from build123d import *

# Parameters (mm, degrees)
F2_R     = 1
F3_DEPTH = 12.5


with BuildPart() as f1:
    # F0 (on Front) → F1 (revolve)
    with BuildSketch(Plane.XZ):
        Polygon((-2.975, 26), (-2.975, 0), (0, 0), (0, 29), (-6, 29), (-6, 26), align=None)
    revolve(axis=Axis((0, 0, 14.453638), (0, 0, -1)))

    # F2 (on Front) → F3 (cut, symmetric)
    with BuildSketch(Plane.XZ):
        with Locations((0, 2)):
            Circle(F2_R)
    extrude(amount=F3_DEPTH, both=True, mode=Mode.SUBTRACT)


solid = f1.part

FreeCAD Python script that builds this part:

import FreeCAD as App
import Part
import Sketcher

V = App.Vector

doc = App.newDocument("Part")
params = doc.addObject("Spreadsheet::Sheet", "Params")
for row, (alias, value) in enumerate([
    ("sketch1_width", "6 mm"),
    ("sketch1_height", "26 mm"),
    ("sketch1_height2", "29 mm"),
    ("revolution_angle", "360 deg"),
    ("sketch2_diameter", "2 mm"),
    ("pocket1_length", "25 mm"),
], start=1):
    params.set(f"A{row}", alias)
    params.set(f"B{row}", "=" + value)
    params.setAlias(f"B{row}", alias)

body = doc.addObject("PartDesign::Body", "Body")

# Sketch on XZ plane
sketch1 = doc.addObject("Sketcher::SketchObject", "Sketch")
body.addObject(sketch1)
sketch1.AttachmentSupport = (doc.XZ_Plane, [""])
sketch1.MapMode = "FlatFace"
sketch1.addGeometry([
    Part.LineSegment(V(-3, 26, 0), V(-3, 0, 0)),  # 0
    Part.LineSegment(V(-3, 0, 0), V(0, 0, 0)),  # 1
    Part.LineSegment(V(0, 0, 0), V(0, 29, 0)),  # 2
    Part.LineSegment(V(0, 29, 0), V(-6, 29, 0)),  # 3
    Part.LineSegment(V(-6, 29, 0), V(-6, 26, 0)),  # 4
    Part.LineSegment(V(-6, 26, 0), V(-3, 26, 0)),  # 5
], False)
sketch1.addConstraint([
    Sketcher.Constraint("Coincident", 0, 2, 1, 1),
    Sketcher.Constraint("Coincident", 1, 2, 2, 1),
    Sketcher.Constraint("Coincident", 2, 2, 3, 1),
    Sketcher.Constraint("Coincident", 3, 2, 4, 1),
    Sketcher.Constraint("Coincident", 4, 2, 5, 1),
    Sketcher.Constraint("Coincident", 5, 2, 0, 1),
    Sketcher.Constraint("Vertical", 0),
    Sketcher.Constraint("Horizontal", 1),
    Sketcher.Constraint("Vertical", 2),
    Sketcher.Constraint("Horizontal", 3),
    Sketcher.Constraint("Vertical", 4),
    Sketcher.Constraint("Horizontal", 5),
    Sketcher.Constraint("Coincident", 1, 2, -1, 1),
    Sketcher.Constraint("DistanceX", 3, 2, 3, 1, 6.0),
    Sketcher.Constraint("DistanceY", 0, 2, 0, 1, 26.0),
    Sketcher.Constraint("DistanceY", 2, 1, 2, 2, 29.0),
    Sketcher.Constraint("DistanceX", 1, 1, 1, 2, 2.975),
])
sketch1.setExpression("Constraints[13]", "Params.sketch1_width")
sketch1.setExpression("Constraints[14]", "Params.sketch1_height")
sketch1.setExpression("Constraints[15]", "Params.sketch1_height2")
revolution = doc.addObject("PartDesign::Revolution", "Revolution")
body.addObject(revolution)
revolution.Profile = sketch1
revolution.ReferenceAxis = (sketch1, ["V_Axis"])
revolution.setExpression("Angle", "Params.revolution_angle")

# Sketch on XZ plane
sketch2 = doc.addObject("Sketcher::SketchObject", "Sketch001")
body.addObject(sketch2)
sketch2.AttachmentSupport = (doc.XZ_Plane, [""])
sketch2.MapMode = "FlatFace"
sketch2.addGeometry(Part.Circle(V(0, 2, 0), V(0, 0, 1), 1), False)
sketch2.addConstraint([
    Sketcher.Constraint("PointOnObject", 0, 3, -2),
    Sketcher.Constraint("Diameter", 0, 2.0),
    Sketcher.Constraint("DistanceY", -1, 1, 0, 3, 2.0),
])
sketch2.setExpression("Constraints[1]", "Params.sketch2_diameter")
pocket1 = doc.addObject("PartDesign::Pocket", "Pocket")
body.addObject(pocket1)
pocket1.Profile = sketch2
pocket1.setExpression("Length", "Params.pocket1_length")
pocket1.Midplane = True

doc.recompute()
